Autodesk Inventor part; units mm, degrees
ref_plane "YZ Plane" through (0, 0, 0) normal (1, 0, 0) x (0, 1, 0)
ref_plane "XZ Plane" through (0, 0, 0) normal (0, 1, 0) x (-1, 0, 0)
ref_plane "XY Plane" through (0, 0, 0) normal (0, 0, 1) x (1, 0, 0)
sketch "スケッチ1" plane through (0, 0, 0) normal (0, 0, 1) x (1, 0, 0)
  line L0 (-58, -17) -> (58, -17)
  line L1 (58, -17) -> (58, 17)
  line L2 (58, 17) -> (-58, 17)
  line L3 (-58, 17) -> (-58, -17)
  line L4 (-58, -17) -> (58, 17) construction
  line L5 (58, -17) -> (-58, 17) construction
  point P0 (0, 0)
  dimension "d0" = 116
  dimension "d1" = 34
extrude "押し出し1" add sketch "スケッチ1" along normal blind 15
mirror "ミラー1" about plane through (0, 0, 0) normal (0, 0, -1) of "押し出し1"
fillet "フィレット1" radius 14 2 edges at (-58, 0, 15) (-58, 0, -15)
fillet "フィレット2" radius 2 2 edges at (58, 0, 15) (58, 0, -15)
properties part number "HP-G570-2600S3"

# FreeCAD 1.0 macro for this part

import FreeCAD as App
import Part
import Sketcher

V = App.Vector
Q = App.Units.Quantity


def edges_at(feature, points):
    """Names of the edges that pass closest to the given points."""
    edges = feature.Shape.Edges
    near = lambda p: min(range(len(edges)), key=lambda i: edges[i].distToShape(Part.Vertex(*p))[0])
    return sorted({f"Edge{near(p) + 1}" for p in points})


def add_polygon(sketch, points):
    """Adds a closed chain of lines whose ends are joined by coincident constraints."""
    first, n = sketch.GeometryCount, len(points)
    for a, b in zip(points, points[1:] + points[:1]):
        sketch.addGeometry(Part.LineSegment(App.Vector(*a, 0), App.Vector(*b, 0)), False)
    for i in range(n):
        sketch.addConstraint(Sketcher.Constraint("Coincident", first + i, 2, first + (i + 1) % n, 1))

doc = App.newDocument("Part")
params = doc.addObject("Spreadsheet::Sheet", "Params")
for row, (alias, value) in enumerate([
    ("sketch1_width", "116 mm"),
    ("sketch1_height", "34 mm"),
    ("pad1_length", "15 mm"),
    ("fillet_radius", "14 mm"),
    ("fillet2_radius", "2 mm"),
], start=1):
    params.set(f"A{row}", alias)
    params.set(f"B{row}", "=" + value)
    params.setAlias(f"B{row}", alias)

body = doc.addObject("PartDesign::Body", "Body")

# Sketch on XY plane
sketch1 = doc.addObject("Sketcher::SketchObject", "Sketch")
body.addObject(sketch1)
sketch1.AttachmentSupport = (doc.XY_Plane, [""])
sketch1.MapMode = "FlatFace"
add_polygon(sketch1, [(-58, 17), (-58, -17), (58, -17), (58, 17)])  # lines 0-3
sketch1.addConstraint([
    Sketcher.Constraint("Vertical", 0),
    Sketcher.Constraint("Horizontal", 1),
    Sketcher.Constraint("Vertical", 2),
    Sketcher.Constraint("Horizontal", 3),
    Sketcher.Constraint("Symmetric", 0, 2, 2, 2, -1, 1),
    Sketcher.Constraint("DistanceX", 1, 1, 1, 2, Q("116 mm")),
    Sketcher.Constraint("DistanceY", 0, 2, 0, 1, Q("34 mm")),
])
sketch1.setExpression("Constraints[9]", "Params.sketch1_width")
sketch1.setExpression("Constraints[10]", "Params.sketch1_height")
pad1 = doc.addObject("PartDesign::Pad", "Pad")
body.addObject(pad1)
pad1.Profile = sketch1
pad1.setExpression("Length", "Params.pad1_length")
doc.recompute()

mirrored = doc.addObject("PartDesign::Mirrored", "Mirrored")
body.addObject(mirrored)
mirrored.Originals = [pad1]
mirrored.MirrorPlane = (doc.XY_Plane, [""])
body.Tip = mirrored
doc.recompute()

fillet = doc.addObject("PartDesign::Fillet", "Fillet")
body.addObject(fillet)
fillet.Base = (mirrored, edges_at(mirrored, [(-58, 0, 15), (-58, 0, -15)]))
fillet.setExpression("Radius", "Params.fillet_radius")
doc.recompute()

fillet2 = doc.addObject("PartDesign::Fillet", "Fillet001")
body.addObject(fillet2)
fillet2.Base = (fillet, edges_at(fillet, [(58, 0, 15), (58, 0, -15)]))
fillet2.setExpression("Radius", "Params.fillet2_radius")

doc.recompute()
